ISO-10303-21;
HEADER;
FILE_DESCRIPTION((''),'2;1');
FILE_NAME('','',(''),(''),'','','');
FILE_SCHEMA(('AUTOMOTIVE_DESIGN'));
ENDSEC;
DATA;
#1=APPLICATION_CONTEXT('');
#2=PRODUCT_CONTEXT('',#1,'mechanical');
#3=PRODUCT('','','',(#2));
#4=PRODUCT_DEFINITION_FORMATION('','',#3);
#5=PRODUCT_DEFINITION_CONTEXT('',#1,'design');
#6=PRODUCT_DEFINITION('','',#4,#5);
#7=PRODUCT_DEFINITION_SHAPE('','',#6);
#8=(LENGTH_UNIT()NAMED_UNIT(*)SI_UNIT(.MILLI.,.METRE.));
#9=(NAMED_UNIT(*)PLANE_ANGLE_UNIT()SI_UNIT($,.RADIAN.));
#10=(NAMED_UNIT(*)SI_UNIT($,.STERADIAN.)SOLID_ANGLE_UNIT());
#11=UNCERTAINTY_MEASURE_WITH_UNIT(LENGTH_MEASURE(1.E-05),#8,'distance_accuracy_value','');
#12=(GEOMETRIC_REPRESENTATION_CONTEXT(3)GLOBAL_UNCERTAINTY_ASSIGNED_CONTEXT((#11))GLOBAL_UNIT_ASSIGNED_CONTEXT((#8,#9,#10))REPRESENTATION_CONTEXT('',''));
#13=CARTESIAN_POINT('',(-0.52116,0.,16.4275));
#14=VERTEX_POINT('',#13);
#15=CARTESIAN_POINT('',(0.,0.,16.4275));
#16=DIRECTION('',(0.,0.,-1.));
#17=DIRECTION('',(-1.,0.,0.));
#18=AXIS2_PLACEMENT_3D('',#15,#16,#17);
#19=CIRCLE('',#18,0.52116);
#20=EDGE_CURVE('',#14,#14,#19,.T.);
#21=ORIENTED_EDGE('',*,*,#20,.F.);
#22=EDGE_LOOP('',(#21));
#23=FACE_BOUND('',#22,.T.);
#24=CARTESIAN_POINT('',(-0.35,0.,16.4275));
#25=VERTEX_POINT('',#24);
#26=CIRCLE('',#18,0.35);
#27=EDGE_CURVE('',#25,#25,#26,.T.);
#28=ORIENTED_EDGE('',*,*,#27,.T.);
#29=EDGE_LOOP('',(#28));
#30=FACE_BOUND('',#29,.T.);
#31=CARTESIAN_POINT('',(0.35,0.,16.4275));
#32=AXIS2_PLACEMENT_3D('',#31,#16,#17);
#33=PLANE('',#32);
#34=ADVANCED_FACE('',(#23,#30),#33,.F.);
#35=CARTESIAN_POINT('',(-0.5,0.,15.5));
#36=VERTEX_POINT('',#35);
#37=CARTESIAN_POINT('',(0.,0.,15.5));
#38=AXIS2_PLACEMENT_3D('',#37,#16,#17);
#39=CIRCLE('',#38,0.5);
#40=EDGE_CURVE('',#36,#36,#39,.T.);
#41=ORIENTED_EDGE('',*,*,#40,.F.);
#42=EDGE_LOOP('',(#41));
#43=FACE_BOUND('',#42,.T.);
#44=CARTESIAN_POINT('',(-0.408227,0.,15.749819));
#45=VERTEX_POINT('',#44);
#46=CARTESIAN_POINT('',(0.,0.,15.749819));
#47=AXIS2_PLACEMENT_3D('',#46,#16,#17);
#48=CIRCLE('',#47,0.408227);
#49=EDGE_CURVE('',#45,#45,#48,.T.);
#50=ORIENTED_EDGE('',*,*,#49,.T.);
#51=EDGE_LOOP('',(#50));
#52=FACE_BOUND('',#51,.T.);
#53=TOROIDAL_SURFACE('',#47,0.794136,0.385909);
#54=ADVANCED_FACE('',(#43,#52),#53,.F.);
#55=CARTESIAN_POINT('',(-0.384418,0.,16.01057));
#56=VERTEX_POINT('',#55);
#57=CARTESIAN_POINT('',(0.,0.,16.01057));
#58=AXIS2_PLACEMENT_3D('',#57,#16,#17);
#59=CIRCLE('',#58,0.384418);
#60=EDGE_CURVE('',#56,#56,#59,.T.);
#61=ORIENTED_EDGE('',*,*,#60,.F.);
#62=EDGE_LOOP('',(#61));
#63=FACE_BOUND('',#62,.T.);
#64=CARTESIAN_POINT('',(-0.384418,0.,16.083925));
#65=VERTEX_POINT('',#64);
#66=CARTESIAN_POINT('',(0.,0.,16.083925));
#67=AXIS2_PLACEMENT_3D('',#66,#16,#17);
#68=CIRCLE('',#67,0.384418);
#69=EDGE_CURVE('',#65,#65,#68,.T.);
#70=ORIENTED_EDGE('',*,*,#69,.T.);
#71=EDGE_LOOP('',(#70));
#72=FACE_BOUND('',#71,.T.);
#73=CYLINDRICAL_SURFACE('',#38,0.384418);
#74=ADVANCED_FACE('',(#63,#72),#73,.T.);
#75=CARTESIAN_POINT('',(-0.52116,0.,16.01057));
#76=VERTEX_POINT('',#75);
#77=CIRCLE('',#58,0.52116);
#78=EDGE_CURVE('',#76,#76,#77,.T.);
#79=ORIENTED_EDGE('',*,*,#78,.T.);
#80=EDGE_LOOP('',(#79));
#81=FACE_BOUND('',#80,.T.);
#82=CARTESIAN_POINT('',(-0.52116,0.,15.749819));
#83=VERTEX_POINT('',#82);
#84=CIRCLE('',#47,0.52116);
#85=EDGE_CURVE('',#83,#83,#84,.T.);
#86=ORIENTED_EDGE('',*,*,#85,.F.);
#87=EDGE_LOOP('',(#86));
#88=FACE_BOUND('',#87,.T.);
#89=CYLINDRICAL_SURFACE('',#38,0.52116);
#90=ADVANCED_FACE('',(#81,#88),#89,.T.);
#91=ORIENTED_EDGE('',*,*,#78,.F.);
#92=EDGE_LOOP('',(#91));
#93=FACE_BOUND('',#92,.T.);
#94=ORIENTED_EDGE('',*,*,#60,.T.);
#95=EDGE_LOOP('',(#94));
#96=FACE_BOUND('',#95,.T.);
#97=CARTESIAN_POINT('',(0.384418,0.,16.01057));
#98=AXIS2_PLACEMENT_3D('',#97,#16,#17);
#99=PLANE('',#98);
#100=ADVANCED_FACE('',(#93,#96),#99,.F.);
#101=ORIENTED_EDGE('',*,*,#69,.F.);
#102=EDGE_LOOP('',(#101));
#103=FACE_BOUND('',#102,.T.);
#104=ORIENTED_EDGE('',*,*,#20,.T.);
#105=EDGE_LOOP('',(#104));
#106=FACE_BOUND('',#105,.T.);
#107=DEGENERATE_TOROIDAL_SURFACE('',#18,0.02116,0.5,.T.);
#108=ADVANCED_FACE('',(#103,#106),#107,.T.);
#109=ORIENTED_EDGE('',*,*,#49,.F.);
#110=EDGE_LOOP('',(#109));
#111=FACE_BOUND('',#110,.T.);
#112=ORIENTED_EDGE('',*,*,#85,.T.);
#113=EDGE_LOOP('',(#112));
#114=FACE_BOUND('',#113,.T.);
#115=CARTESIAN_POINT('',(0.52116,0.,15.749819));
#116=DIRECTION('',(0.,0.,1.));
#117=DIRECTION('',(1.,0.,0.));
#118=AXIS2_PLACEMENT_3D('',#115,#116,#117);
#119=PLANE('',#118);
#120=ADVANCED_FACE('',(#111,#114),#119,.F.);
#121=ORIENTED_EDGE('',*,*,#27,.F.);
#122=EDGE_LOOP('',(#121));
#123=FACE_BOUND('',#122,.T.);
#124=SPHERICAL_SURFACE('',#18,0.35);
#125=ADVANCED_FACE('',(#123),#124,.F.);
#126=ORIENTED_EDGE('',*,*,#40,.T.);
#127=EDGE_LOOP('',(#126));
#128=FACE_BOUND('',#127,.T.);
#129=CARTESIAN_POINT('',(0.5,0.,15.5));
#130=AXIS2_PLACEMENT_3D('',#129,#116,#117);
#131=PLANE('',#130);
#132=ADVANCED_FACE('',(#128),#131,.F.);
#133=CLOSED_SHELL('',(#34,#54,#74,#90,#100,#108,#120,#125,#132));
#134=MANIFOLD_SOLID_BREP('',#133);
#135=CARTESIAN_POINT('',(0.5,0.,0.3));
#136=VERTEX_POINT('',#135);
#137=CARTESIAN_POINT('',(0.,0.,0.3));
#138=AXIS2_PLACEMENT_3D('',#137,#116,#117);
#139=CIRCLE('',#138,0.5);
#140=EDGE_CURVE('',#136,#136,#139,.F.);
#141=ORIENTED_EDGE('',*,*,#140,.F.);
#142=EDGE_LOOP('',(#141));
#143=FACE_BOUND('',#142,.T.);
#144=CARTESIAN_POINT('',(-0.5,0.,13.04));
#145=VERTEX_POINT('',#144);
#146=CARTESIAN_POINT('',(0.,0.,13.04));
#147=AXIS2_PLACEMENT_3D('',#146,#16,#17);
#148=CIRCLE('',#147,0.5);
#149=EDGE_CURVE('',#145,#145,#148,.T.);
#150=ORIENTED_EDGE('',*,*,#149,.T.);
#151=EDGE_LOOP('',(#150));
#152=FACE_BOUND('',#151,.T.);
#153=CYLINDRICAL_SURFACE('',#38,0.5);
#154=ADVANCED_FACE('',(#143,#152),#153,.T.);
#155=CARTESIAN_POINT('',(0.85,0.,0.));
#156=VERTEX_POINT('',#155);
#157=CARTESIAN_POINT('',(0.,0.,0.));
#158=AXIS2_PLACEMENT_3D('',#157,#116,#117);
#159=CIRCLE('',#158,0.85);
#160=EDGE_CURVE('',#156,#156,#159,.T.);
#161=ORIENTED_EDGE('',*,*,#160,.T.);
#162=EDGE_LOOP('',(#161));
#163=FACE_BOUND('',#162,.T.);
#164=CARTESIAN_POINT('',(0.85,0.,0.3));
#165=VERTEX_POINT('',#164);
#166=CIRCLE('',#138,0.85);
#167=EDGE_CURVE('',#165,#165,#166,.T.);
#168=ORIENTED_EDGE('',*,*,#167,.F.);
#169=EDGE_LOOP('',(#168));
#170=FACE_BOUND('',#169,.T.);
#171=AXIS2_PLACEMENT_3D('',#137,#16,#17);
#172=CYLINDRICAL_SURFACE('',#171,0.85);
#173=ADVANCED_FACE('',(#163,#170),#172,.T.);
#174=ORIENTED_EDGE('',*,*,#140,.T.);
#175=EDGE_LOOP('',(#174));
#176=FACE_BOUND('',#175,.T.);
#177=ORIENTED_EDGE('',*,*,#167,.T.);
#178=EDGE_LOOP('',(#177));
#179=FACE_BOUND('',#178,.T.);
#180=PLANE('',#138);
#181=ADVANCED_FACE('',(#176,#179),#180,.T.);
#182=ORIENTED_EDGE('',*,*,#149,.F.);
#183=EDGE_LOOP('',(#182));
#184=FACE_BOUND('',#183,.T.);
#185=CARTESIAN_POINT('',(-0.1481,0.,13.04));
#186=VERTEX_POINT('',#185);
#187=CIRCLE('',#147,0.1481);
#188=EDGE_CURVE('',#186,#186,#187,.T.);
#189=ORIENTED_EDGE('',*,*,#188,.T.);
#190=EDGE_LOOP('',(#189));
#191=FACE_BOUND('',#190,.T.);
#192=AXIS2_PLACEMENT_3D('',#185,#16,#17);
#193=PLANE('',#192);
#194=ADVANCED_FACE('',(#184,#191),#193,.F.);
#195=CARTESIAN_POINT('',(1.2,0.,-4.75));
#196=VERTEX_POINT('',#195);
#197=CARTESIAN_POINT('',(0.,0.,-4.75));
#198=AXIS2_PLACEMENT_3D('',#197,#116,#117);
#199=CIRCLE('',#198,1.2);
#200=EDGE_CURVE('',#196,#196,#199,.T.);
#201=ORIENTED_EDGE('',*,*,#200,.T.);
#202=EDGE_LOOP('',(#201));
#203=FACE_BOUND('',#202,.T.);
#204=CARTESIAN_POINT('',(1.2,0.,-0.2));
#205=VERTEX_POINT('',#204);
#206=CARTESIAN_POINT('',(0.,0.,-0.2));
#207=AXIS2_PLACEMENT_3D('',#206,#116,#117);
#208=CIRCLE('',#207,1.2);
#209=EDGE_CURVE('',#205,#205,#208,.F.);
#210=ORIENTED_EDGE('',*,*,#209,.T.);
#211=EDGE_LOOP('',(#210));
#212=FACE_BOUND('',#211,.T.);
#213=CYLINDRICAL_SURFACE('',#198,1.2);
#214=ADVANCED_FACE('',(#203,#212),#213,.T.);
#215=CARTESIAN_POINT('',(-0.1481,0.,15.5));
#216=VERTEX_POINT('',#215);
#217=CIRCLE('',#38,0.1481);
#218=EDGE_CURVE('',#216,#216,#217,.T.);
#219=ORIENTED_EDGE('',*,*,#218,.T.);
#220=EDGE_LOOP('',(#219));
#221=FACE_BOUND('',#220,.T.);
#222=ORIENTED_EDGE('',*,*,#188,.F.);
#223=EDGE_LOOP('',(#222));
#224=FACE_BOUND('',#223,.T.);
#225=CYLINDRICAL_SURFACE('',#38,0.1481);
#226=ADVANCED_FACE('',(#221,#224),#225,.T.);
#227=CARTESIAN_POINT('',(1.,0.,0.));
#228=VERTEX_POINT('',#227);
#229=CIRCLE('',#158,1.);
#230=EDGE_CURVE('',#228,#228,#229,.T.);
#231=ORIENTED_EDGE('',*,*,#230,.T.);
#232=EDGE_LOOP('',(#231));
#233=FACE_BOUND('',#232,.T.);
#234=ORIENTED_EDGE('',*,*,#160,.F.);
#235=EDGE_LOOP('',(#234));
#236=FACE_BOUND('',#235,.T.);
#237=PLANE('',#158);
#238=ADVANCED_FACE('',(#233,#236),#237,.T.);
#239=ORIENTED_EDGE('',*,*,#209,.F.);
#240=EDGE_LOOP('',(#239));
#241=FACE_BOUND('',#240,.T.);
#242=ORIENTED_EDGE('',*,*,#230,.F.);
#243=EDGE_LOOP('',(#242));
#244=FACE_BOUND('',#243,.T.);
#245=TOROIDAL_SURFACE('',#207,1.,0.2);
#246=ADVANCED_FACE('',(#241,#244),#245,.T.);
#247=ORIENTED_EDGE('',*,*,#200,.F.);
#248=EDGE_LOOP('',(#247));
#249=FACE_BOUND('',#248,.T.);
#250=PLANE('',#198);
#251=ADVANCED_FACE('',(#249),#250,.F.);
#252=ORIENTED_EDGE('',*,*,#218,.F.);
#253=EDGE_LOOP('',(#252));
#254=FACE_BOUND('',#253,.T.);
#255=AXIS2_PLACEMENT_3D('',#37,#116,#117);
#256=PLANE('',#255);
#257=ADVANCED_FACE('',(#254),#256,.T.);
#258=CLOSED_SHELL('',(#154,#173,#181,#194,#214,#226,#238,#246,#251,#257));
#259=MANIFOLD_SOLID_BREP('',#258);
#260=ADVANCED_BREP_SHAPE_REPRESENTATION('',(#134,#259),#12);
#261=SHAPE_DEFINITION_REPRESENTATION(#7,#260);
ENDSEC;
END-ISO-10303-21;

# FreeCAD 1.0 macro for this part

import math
import FreeCAD as App
import Part
import Sketcher


def edges_at(feature, points):
    """Names of the edges that pass closest to the given points."""
    edges = feature.Shape.Edges
    near = lambda p: min(range(len(edges)), key=lambda i: edges[i].distToShape(Part.Vertex(*p))[0])
    return sorted({f"Edge{near(p) + 1}" for p in points})

doc = App.newDocument("Part")
body = doc.addObject("PartDesign::Body", "Body")

sketch1 = body.newObject("Sketcher::SketchObject", "Sketch")
sketch1.AttachmentSupport = (doc.getObject("XY_Plane"), [""])
sketch1.MapMode = "FlatFace"
sketch1.addGeometry(Part.Circle(App.Vector(0, 0, 0), App.Vector(0, 0, 1), 0.5), False)
sketch1.addConstraint([
    Sketcher.Constraint("Coincident", 0, 3, -1, 1),
    Sketcher.Constraint("Diameter", 0, 1.0),
])
pad1 = body.newObject("PartDesign::Pad", "Pad")
pad1.Profile = sketch1
pad1.Length = 15.5

sketch2 = body.newObject("Sketcher::SketchObject", "Sketch001")
sketch2.AttachmentSupport = (doc.getObject("XZ_Plane"), [""])
sketch2.MapMode = "FlatFace"
sketch2.addGeometry([
    Part.LineSegment(App.Vector(-0.932074, 13.04, 0), App.Vector(-0.932074, 15.5, 0)),
    Part.LineSegment(App.Vector(-0.932074, 15.5, 0), App.Vector(-0.1481, 15.5, 0)),
    Part.LineSegment(App.Vector(-0.1481, 15.5, 0), App.Vector(-0.1481, 13.04, 0)),
    Part.LineSegment(App.Vector(-0.1481, 13.04, 0), App.Vector(-0.932074, 13.04, 0)),
], False)
sketch2.addConstraint([
    Sketcher.Constraint("Coincident", 0, 2, 1, 1),
    Sketcher.Constraint("Coincident", 1, 2, 2, 1),
    Sketcher.Constraint("Coincident", 2, 2, 3, 1),
    Sketcher.Constraint("Coincident", 3, 2, 0, 1),
    Sketcher.Constraint("Vertical", 0),
    Sketcher.Constraint("Horizontal", 1),
    Sketcher.Constraint("Vertical", 2),
    Sketcher.Constraint("Horizontal", 3),
    Sketcher.Constraint("DistanceY", 0, 1, 0, 2, 2.46),
    Sketcher.Constraint("DistanceY", -1, 1, 0, 2, 15.5),
    Sketcher.Constraint("DistanceX", 1, 2, -1, 1, 0.1481),
    Sketcher.Constraint("DistanceX", 1, 1, 1, 2, 0.783974),
])
groove = body.newObject("PartDesign::Groove", "Groove")
groove.Profile = sketch2
groove.ReferenceAxis = (sketch2, ["V_Axis"])
groove.Angle = 360
body2 = doc.addObject("PartDesign::Body", "Body001")

sketch3 = body2.newObject("Sketcher::SketchObject", "Sketch002")
sketch3.AttachmentSupport = (doc.getObject("XY_Plane001"), [""])
sketch3.MapMode = "FlatFace"
sketch3.addGeometry(Part.Circle(App.Vector(0, 0, 0), App.Vector(0, 0, 1), 1.2), False)
sketch3.addConstraint([
    Sketcher.Constraint("Coincident", 0, 3, -1, 1),
    Sketcher.Constraint("Diameter", 0, 2.4),
])
pad2 = body2.newObject("PartDesign::Pad", "Pad001")
pad2.Profile = sketch3
pad2.Length = 4.75
pad2.Reversed = True
doc.recompute()

fillet = body2.newObject("PartDesign::Fillet", "Fillet")
fillet.Base = (pad2, edges_at(pad2, [(-1.2, 0, 0)]))
fillet.Radius = 0.2
body3 = doc.addObject("PartDesign::Body", "Body002")

sketch4 = body3.newObject("Sketcher::SketchObject", "Sketch003")
sketch4.AttachmentSupport = (doc.getObject("XZ_Plane002"), [""])
sketch4.MapMode = "FlatFace"
sketch4.addGeometry([
    Part.LineSegment(App.Vector(0.5, 15.5, 0), App.Vector(0, 15.5, 0)),
    Part.LineSegment(App.Vector(0, 15.5, 0), App.Vector(0, 16.0775, 0)),
    Part.ArcOfCircle(Part.Circle(App.Vector(0, 16.4275, 0), App.Vector(0, 0, 1), 0.35), math.radians(-90), math.radians(0)),
    Part.LineSegment(App.Vector(0.35, 16.4275, 0), App.Vector(0.52116, 16.4275, 0)),
    Part.ArcOfCircle(Part.Circle(App.Vector(0.02116, 16.4275, 0), App.Vector(0, 0, 1), 0.5), math.radians(-43.404926), math.radians(0)),
    Part.LineSegment(App.Vector(0.384418, 16.083925, 0), App.Vector(0.384418, 16.01057, 0)),
    Part.LineSegment(App.Vector(0.384418, 16.01057, 0), App.Vector(0.52116, 16.01057, 0)),
    Part.LineSegment(App.Vector(0.52116, 16.01057, 0), App.Vector(0.52116, 15.749819, 0)),
    Part.LineSegment(App.Vector(0.52116, 15.749819, 0), App.Vector(0.408227, 15.749819, 0)),
    Part.ArcOfCircle(Part.Circle(App.Vector(0.794136, 15.749819, 0), App.Vector(0, 0, 1), 0.385909), math.radians(179.999999), math.radians(220.342279)),
], False)
sketch4.addConstraint([
    Sketcher.Constraint("Coincident", 0, 2, 1, 1),
    Sketcher.Constraint("Coincident", 1, 2, 2, 1),
    Sketcher.Constraint("Coincident", 2, 2, 3, 1),
    Sketcher.Constraint("Coincident", 3, 2, 4, 2),
    Sketcher.Constraint("Coincident", 4, 1, 5, 1),
    Sketcher.Constraint("Coincident", 5, 2, 6, 1),
    Sketcher.Constraint("Coincident", 6, 2, 7, 1),
    Sketcher.Constraint("Coincident", 7, 2, 8, 1),
    Sketcher.Constraint("Coincident", 8, 2, 9, 1),
    Sketcher.Constraint("Coincident", 9, 2, 0, 1),
    Sketcher.Constraint("Horizontal", 0),
    Sketcher.Constraint("Vertical", 1),
    Sketcher.Constraint("Horizontal", 3),
    Sketcher.Constraint("Vertical", 5),
    Sketcher.Constraint("Horizontal", 6),
    Sketcher.Constraint("Vertical", 7),
    Sketcher.Constraint("Horizontal", 8),
    Sketcher.Constraint("PointOnObject", 2, 3, -2),
    Sketcher.Constraint("PointOnObject", 0, 2, -2),
    Sketcher.Constraint("Horizontal", 2, 3, 4, 3),
    Sketcher.Constraint("Horizontal", 4, 3, 2, 2),
    Sketcher.Constraint("Horizontal", 9, 3, 7, 2),
    Sketcher.Constraint("Vertical", 3, 2, 6, 2),
    Sketcher.Constraint("Radius", 4, 0.5),
    Sketcher.Constraint("Radius", 2, 0.35),
    Sketcher.Constraint("DistanceX", 0, 2, 0, 1, 0.5),
    Sketcher.Constraint("DistanceY", -1, 1, 0, 2, 15.5),
    Sketcher.Constraint("Radius", 9, 0.385909),
    Sketcher.Constraint("DistanceY", 1, 1, 1, 2, 0.5775),
    Sketcher.Constraint("DistanceX", 3, 1, 3, 2, 0.17116),
    Sketcher.Constraint("DistanceY", 7, 2, 7, 1, 0.260751),
    Sketcher.Constraint("DistanceX", 6, 1, 6, 2, 0.136742),
    Sketcher.Constraint("DistanceX", 8, 2, 8, 1, 0.112933),
])
revolution = body3.newObject("PartDesign::Revolution", "Revolution")
revolution.Profile = sketch4
revolution.ReferenceAxis = (sketch4, ["V_Axis"])
revolution.Angle = 360
doc.recompute()

boolean = body.newObject("PartDesign::Boolean", "Boolean")
boolean.Type = "Fuse"
boolean.addObjects([body2])

sketch5 = body.newObject("Sketcher::SketchObject", "Sketch004")
sketch5.AttachmentSupport = (doc.getObject("XY_Plane"), [""])
sketch5.MapMode = "FlatFace"
sketch5.addGeometry(Part.Circle(App.Vector(0, 0, 0), App.Vector(0, 0, 1), 0.85), False)
sketch5.addConstraint([
    Sketcher.Constraint("Coincident", 0, 3, -1, 1),
    Sketcher.Constraint("Diameter", 0, 1.7),
])
pad3 = body.newObject("PartDesign::Pad", "Pad002")
pad3.Profile = sketch5
pad3.Length = 0.3

doc.recompute()
